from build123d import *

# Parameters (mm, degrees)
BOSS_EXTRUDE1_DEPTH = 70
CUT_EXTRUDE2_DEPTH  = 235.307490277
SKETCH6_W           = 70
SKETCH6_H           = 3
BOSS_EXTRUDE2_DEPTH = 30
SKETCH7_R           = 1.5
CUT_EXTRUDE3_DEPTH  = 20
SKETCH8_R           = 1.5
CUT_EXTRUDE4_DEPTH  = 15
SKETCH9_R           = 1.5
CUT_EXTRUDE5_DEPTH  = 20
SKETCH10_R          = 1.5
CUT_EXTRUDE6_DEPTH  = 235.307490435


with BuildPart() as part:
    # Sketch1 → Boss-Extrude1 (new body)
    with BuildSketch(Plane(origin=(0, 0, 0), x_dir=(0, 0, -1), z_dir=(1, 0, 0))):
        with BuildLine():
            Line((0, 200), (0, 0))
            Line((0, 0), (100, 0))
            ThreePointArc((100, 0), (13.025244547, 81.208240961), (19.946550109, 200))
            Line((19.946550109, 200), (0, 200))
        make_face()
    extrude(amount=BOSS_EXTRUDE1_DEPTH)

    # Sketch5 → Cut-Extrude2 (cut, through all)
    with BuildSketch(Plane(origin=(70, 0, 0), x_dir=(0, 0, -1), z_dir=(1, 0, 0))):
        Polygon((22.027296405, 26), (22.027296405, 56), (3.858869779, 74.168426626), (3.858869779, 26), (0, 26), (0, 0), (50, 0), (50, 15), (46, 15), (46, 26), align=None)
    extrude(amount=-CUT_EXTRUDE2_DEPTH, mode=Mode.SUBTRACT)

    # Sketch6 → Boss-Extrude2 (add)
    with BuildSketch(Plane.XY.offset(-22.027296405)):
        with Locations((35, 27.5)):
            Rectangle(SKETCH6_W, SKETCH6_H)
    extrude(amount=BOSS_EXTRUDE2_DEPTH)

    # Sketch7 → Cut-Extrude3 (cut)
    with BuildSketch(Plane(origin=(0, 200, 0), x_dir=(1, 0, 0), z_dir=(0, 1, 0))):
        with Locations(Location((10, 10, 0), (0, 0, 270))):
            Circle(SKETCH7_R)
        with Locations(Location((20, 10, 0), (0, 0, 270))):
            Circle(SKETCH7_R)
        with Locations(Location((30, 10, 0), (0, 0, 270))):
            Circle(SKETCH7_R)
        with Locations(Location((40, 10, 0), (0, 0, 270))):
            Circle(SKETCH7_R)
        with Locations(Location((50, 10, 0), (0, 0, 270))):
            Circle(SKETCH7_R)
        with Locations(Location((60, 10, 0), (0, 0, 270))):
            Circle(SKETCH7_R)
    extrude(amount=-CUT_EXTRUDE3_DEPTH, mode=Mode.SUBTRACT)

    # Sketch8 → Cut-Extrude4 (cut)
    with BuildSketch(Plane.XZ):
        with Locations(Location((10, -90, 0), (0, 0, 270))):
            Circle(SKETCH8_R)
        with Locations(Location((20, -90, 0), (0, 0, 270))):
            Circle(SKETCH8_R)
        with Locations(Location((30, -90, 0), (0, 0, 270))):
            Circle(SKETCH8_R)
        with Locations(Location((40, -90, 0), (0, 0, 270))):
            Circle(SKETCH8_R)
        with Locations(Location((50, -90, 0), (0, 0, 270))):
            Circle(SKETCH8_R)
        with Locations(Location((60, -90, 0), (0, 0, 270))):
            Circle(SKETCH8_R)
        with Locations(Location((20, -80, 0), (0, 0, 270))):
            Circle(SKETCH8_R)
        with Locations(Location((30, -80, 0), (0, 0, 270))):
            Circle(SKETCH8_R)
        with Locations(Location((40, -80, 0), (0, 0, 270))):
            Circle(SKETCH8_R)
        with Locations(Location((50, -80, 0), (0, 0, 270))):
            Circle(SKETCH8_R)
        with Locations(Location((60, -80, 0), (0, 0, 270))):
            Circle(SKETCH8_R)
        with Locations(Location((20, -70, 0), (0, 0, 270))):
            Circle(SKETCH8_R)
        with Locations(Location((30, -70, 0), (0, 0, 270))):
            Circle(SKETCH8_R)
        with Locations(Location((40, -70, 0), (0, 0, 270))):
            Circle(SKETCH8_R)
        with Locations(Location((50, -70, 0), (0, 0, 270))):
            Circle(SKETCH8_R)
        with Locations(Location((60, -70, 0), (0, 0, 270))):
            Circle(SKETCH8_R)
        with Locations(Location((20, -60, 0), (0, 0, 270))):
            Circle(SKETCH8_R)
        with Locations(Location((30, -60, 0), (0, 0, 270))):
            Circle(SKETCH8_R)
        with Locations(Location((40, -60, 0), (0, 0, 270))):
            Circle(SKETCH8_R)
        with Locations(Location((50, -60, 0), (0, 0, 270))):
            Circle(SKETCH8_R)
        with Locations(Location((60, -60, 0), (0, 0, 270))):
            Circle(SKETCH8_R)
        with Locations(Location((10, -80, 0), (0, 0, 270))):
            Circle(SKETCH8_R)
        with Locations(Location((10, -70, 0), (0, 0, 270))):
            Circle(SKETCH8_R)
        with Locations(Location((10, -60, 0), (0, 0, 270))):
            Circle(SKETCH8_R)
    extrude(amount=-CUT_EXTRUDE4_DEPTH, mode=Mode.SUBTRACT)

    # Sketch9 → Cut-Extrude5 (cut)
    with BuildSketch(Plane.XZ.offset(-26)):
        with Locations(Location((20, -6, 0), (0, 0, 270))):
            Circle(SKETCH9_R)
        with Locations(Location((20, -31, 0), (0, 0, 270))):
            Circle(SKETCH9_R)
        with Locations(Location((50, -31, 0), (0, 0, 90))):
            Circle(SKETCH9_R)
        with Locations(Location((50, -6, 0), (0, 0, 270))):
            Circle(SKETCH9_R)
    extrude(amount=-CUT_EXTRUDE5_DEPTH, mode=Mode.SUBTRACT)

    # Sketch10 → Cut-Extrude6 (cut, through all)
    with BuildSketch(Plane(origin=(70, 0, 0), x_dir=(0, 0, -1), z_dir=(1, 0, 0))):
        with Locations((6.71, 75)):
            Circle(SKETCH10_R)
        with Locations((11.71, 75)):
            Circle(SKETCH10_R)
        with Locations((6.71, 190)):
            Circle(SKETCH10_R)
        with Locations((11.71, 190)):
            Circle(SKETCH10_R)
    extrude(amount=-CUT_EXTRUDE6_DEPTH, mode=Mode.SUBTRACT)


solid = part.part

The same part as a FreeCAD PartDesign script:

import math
import FreeCAD as App
import Part
import Sketcher

V = App.Vector
Q = App.Units.Quantity


def add_polygon(sketch, points):
    """Adds a closed chain of lines whose ends are joined by coincident constraints."""
    first, n = sketch.GeometryCount, len(points)
    for a, b in zip(points, points[1:] + points[:1]):
        sketch.addGeometry(Part.LineSegment(App.Vector(*a, 0), App.Vector(*b, 0)), False)
    for i in range(n):
        sketch.addConstraint(Sketcher.Constraint("Coincident", first + i, 2, first + (i + 1) % n, 1))

doc = App.newDocument("Part")
params = doc.addObject("Spreadsheet::Sheet", "Params")
for row, (alias, value) in enumerate([
    ("sketch1_radius", "140 mm"),
    ("sketch1_width", "200 mm"),
    ("sketch1_height", "100 mm"),
    ("pad1_length", "70 mm"),
    ("sketch2_width", "30 mm"),
    ("sketch2_width2", "26 mm"),
    ("sketch2_width3", "15 mm"),
    ("sketch2_height", "50 mm"),
    ("sketch2_height2", "4 mm"),
    ("sketch3_width", "70 mm"),
    ("sketch3_height", "3 mm"),
    ("pad2_length", "30 mm"),
    ("sketch4_diameter", "3 mm"),
    ("pocket2_length", "20 mm"),
    ("sketch5_diameter", "3 mm"),
    ("pocket3_length", "15 mm"),
    ("sketch6_diameter", "3 mm"),
    ("pocket4_length", "20 mm"),
    ("sketch7_diameter", "3 mm"),
], start=1):
    params.set(f"A{row}", alias)
    params.set(f"B{row}", "=" + value)
    params.setAlias(f"B{row}", alias)

body = doc.addObject("PartDesign::Body", "Body")

# Sketch on YZ plane
sketch1 = doc.addObject("Sketcher::SketchObject", "Sketch")
body.addObject(sketch1)
sketch1.AttachmentSupport = (doc.YZ_Plane, [""])
sketch1.MapMode = "FlatFace"
sketch1.addGeometry([
    Part.LineSegment(V(200, 0, 0), V(0, 0, 0)),
    Part.LineSegment(V(0, 0, 0), V(0, -100, 0)),
    Part.ArcOfCircle(Part.Circle(V(133.232879, -143, 0), V(0, 0, 1), 140), math.radians(61.516347), math.radians(162.11287)),
    Part.LineSegment(V(200, -19.94655, 0), V(200, 0, 0)),
], False)
sketch1.addConstraint([
    Sketcher.Constraint("Coincident", 0, 2, 1, 1),
    Sketcher.Constraint("Coincident", 1, 2, 2, 2),
    Sketcher.Constraint("Coincident", 2, 1, 3, 1),
    Sketcher.Constraint("Coincident", 3, 2, 0, 1),
    Sketcher.Constraint("Horizontal", 0),
    Sketcher.Constraint("Vertical", 1),
    Sketcher.Constraint("Vertical", 3),
    Sketcher.Constraint("Coincident", 0, 2, -1, 1),
    Sketcher.Constraint("Radius", 2, Q("140 mm")),
    Sketcher.Constraint("DistanceX", 0, 2, 0, 1, Q("200 mm")),
    Sketcher.Constraint("DistanceY", 1, 2, 1, 1, Q("100 mm")),
    Sketcher.Constraint("DistanceY", 2, 3, -1, 1, Q("143 mm")),
])
sketch1.setExpression("Constraints[8]", "Params.sketch1_radius")
sketch1.setExpression("Constraints[9]", "Params.sketch1_width")
sketch1.setExpression("Constraints[10]", "Params.sketch1_height")
pad1 = doc.addObject("PartDesign::Pad", "Pad")
body.addObject(pad1)
pad1.Profile = sketch1
pad1.setExpression("Length", "Params.pad1_length")

# Sketch on YZ plane
sketch2 = doc.addObject("Sketcher::SketchObject", "Sketch001")
body.addObject(sketch2)
sketch2.AttachmentSupport = (doc.YZ_Plane, [""])
sketch2.MapMode = "FlatFace"
sketch2.AttachmentOffset = App.Placement(V(0, 0, 70), App.Rotation())
add_polygon(sketch2, [(26, -22.027296), (56, -22.027296), (74.168427, -3.85887), (26, -3.85887), (26, 0), (0, 0), (0, -50), (15, -50), (15, -46), (26, -46)])  # lines 0-9
sketch2.addConstraint([
    Sketcher.Constraint("Horizontal", 0),
    Sketcher.Constraint("Horizontal", 2),
    Sketcher.Constraint("Vertical", 3),
    Sketcher.Constraint("Horizontal", 4),
    Sketcher.Constraint("Vertical", 5),
    Sketcher.Constraint("Horizontal", 6),
    Sketcher.Constraint("Vertical", 7),
    Sketcher.Constraint("Horizontal", 8),
    Sketcher.Constraint("Vertical", 9),
    Sketcher.Constraint("Coincident", 4, 2, -1, 1),
    Sketcher.Constraint("Vertical", 3, 2, 8, 2),
    Sketcher.Constraint("DistanceX", 0, 1, 0, 2, Q("30 mm")),
    Sketcher.Constraint("DistanceX", 4, 2, 4, 1, Q("26 mm")),
    Sketcher.Constraint("DistanceX", 6, 1, 6, 2, Q("15 mm")),
    Sketcher.Constraint("DistanceY", 5, 2, 5, 1, Q("50 mm")),
    Sketcher.Constraint("DistanceY", 7, 1, 7, 2, Q("4 mm")),
    Sketcher.Constraint("Angle", 1, Q("45 deg")),
    Sketcher.Constraint("DistanceY", 3, 1, 3, 2, Q("3.85887 mm")),
    Sketcher.Constraint("DistanceX", 2, 2, 2, 1, Q("48.168427 mm")),
])
sketch2.setExpression("Constraints[21]", "Params.sketch2_width")
sketch2.setExpression("Constraints[22]", "Params.sketch2_width2")
sketch2.setExpression("Constraints[23]", "Params.sketch2_width3")
sketch2.setExpression("Constraints[24]", "Params.sketch2_height")
sketch2.setExpression("Constraints[25]", "Params.sketch2_height2")
pocket1 = doc.addObject("PartDesign::Pocket", "Pocket")
body.addObject(pocket1)
pocket1.Profile = sketch2
pocket1.Type = "ThroughAll"

# Sketch on XY plane
sketch3 = doc.addObject("Sketcher::SketchObject", "Sketch002")
body.addObject(sketch3)
sketch3.AttachmentSupport = (doc.XY_Plane, [""])
sketch3.MapMode = "FlatFace"
sketch3.AttachmentOffset = App.Placement(V(0, 0, -22.027296), App.Rotation())
add_polygon(sketch3, [(0, 29), (0, 26), (70, 26), (70, 29)])  # lines 0-3
sketch3.addConstraint([
    Sketcher.Constraint("Vertical", 0),
    Sketcher.Constraint("Horizontal", 1),
    Sketcher.Constraint("Vertical", 2),
    Sketcher.Constraint("Horizontal", 3),
    Sketcher.Constraint("PointOnObject", 0, 2, -2),
    Sketcher.Constraint("DistanceX", 1, 1, 1, 2, Q("70 mm")),
    Sketcher.Constraint("DistanceY", 0, 2, 0, 1, Q("3 mm")),
    Sketcher.Constraint("DistanceY", -1, 1, 0, 2, Q("26 mm")),
])
sketch3.setExpression("Constraints[9]", "Params.sketch3_width")
sketch3.setExpression("Constraints[10]", "Params.sketch3_height")
pad2 = doc.addObject("PartDesign::Pad", "Pad001")
body.addObject(pad2)
pad2.Profile = sketch3
pad2.setExpression("Length", "Params.pad2_length")

# Sketch on XZ plane
sketch4 = doc.addObject("Sketcher::SketchObject", "Sketch003")
body.addObject(sketch4)
sketch4.AttachmentSupport = (doc.XZ_Plane, [""])
sketch4.MapMode = "FlatFace"
sketch4.AttachmentOffset = App.Placement(V(0, 0, -200), App.Rotation())
sketch4.addGeometry([
    Part.Circle(V(10, -10, 0), V(0, 0, 1), 1.5),  # 0
    Part.Circle(V(20, -10, 0), V(0, 0, 1), 1.5),  # 1
    Part.Circle(V(30, -10, 0), V(0, 0, 1), 1.5),  # 2
    Part.Circle(V(40, -10, 0), V(0, 0, 1), 1.5),  # 3
    Part.Circle(V(50, -10, 0), V(0, 0, 1), 1.5),  # 4
    Part.Circle(V(60, -10, 0), V(0, 0, 1), 1.5),  # 5
], False)
sketch4.addConstraint([
    Sketcher.Constraint("Equal", 0, 1),
    Sketcher.Constraint("Equal", 1, 2),
    Sketcher.Constraint("Equal", 2, 3),
    Sketcher.Constraint("Equal", 3, 4),
    Sketcher.Constraint("Equal", 4, 5),
    Sketcher.Constraint("Horizontal", 0, 3, 1, 3),
    Sketcher.Constraint("Horizontal", 1, 3, 2, 3),
    Sketcher.Constraint("Horizontal", 2, 3, 3, 3),
    Sketcher.Constraint("Horizontal", 3, 3, 4, 3),
    Sketcher.Constraint("Horizontal", 4, 3, 5, 3),
    Sketcher.Constraint("Diameter", 0, Q("3 mm")),
    Sketcher.Constraint("DistanceX", -1, 1, 0, 3, Q("10 mm")),
    Sketcher.Constraint("DistanceY", 0, 3, -1, 1, Q("10 mm")),
    Sketcher.Constraint("DistanceX", -1, 1, 1, 3, Q("20 mm")),
    Sketcher.Constraint("DistanceX", -1, 1, 2, 3, Q("30 mm")),
    Sketcher.Constraint("DistanceX", -1, 1, 3, 3, Q("40 mm")),
    Sketcher.Constraint("DistanceX", -1, 1, 4, 3, Q("50 mm")),
    Sketcher.Constraint("DistanceX", -1, 1, 5, 3, Q("60 mm")),
])
sketch4.setExpression("Constraints[10]", "Params.sketch4_diameter")
pocket2 = doc.addObject("PartDesign::Pocket", "Pocket001")
body.addObject(pocket2)
pocket2.Profile = sketch4
pocket2.setExpression("Length", "Params.pocket2_length")
pocket2.Reversed = True

# Sketch on XZ plane
sketch5 = doc.addObject("Sketcher::SketchObject", "Sketch004")
body.addObject(sketch5)
sketch5.AttachmentSupport = (doc.XZ_Plane, [""])
sketch5.MapMode = "FlatFace"
sketch5.addGeometry([
    Part.Circle(V(10, -90, 0), V(0, 0, 1), 1.5),  # 0
    Part.Circle(V(20, -90, 0), V(0, 0, 1), 1.5),  # 1
    Part.Circle(V(30, -90, 0), V(0, 0, 1), 1.5),  # 2
    Part.Circle(V(40, -90, 0), V(0, 0, 1), 1.5),  # 3
    Part.Circle(V(50, -90, 0), V(0, 0, 1), 1.5),  # 4
    Part.Circle(V(60, -90, 0), V(0, 0, 1), 1.5),  # 5
    Part.Circle(V(20, -80, 0), V(0, 0, 1), 1.5),  # 6
    Part.Circle(V(30, -80, 0), V(0, 0, 1), 1.5),  # 7
    Part.Circle(V(40, -80, 0), V(0, 0, 1), 1.5),  # 8
    Part.Circle(V(50, -80, 0), V(0, 0, 1), 1.5),  # 9
    Part.Circle(V(60, -80, 0), V(0, 0, 1), 1.5),  # 10
    Part.Circle(V(20, -70, 0), V(0, 0, 1), 1.5),  # 11
    Part.Circle(V(30, -70, 0), V(0, 0, 1), 1.5),  # 12
    Part.Circle(V(40, -70, 0), V(0, 0, 1), 1.5),  # 13
    Part.Circle(V(50, -70, 0), V(0, 0, 1), 1.5),  # 14
    Part.Circle(V(60, -70, 0), V(0, 0, 1), 1.5),  # 15
    Part.Circle(V(20, -60, 0), V(0, 0, 1), 1.5),  # 16
    Part.Circle(V(30, -60, 0), V(0, 0, 1), 1.5),  # 17
    Part.Circle(V(40, -60, 0), V(0, 0, 1), 1.5),  # 18
    Part.Circle(V(50, -60, 0), V(0, 0, 1), 1.5),  # 19
    Part.Circle(V(60, -60, 0), V(0, 0, 1), 1.5),  # 20
    Part.Circle(V(10, -80, 0), V(0, 0, 1), 1.5),  # 21
    Part.Circle(V(10, -70, 0), V(0, 0, 1), 1.5),  # 22
    Part.Circle(V(10, -60, 0), V(0, 0, 1), 1.5),  # 23
], False)
sketch5.addConstraint([
    Sketcher.Constraint("Equal", 0, 1),
    Sketcher.Constraint("Equal", 1, 2),
    Sketcher.Constraint("Equal", 2, 3),
    Sketcher.Constraint("Equal", 3, 4),
    Sketcher.Constraint("Equal", 4, 5),
    Sketcher.Constraint("Equal", 5, 6),
    Sketcher.Constraint("Equal", 6, 7),
    Sketcher.Constraint("Equal", 7, 8),
    Sketcher.Constraint("Equal", 8, 9),
    Sketcher.Constraint("Equal", 9, 10),
    Sketcher.Constraint("Equal", 10, 11),
    Sketcher.Constraint("Equal", 11, 12),
    Sketcher.Constraint("Equal", 12, 13),
    Sketcher.Constraint("Equal", 13, 14),
    Sketcher.Constraint("Equal", 14, 15),
    Sketcher.Constraint("Equal", 15, 16),
    Sketcher.Constraint("Equal", 16, 17),
    Sketcher.Constraint("Equal", 17, 18),
    Sketcher.Constraint("Equal", 18, 19),
    Sketcher.Constraint("Equal", 19, 20),
    Sketcher.Constraint("Equal", 20, 21),
    Sketcher.Constraint("Equal", 21, 22),
    Sketcher.Constraint("Equal", 22, 23),
    Sketcher.Constraint("Horizontal", 0, 3, 1, 3),
    Sketcher.Constraint("Horizontal", 1, 3, 2, 3),
    Sketcher.Constraint("Horizontal", 2, 3, 3, 3),
    Sketcher.Constraint("Horizontal", 3, 3, 4, 3),
    Sketcher.Constraint("Horizontal", 4, 3, 5, 3),
    Sketcher.Constraint("Horizontal", 6, 3, 7, 3),
    Sketcher.Constraint("Horizontal", 7, 3, 8, 3),
    Sketcher.Constraint("Horizontal", 8, 3, 9, 3),
    Sketcher.Constraint("Horizontal", 9, 3, 10, 3),
    Sketcher.Constraint("Horizontal", 11, 3, 12, 3),
    Sketcher.Constraint("Horizontal", 12, 3, 13, 3),
    Sketcher.Constraint("Horizontal", 13, 3, 14, 3),
    Sketcher.Constraint("Horizontal", 14, 3, 15, 3),
    Sketcher.Constraint("Horizontal", 16, 3, 17, 3),
    Sketcher.Constraint("Horizontal", 17, 3, 18, 3),
    Sketcher.Constraint("Horizontal", 18, 3, 19, 3),
    Sketcher.Constraint("Horizontal", 19, 3, 20, 3),
    Sketcher.Constraint("Horizontal", 10, 3, 21, 3),
    Sketcher.Constraint("Horizontal", 15, 3, 22, 3),
    Sketcher.Constraint("Horizontal", 20, 3, 23, 3),
    Sketcher.Constraint("Vertical", 1, 3, 6, 3),
    Sketcher.Constraint("Vertical", 2, 3, 7, 3),
    Sketcher.Constraint("Vertical", 3, 3, 8, 3),
    Sketcher.Constraint("Vertical", 4, 3, 9, 3),
    Sketcher.Constraint("Vertical", 5, 3, 10, 3),
    Sketcher.Constraint("Vertical", 6, 3, 11, 3),
    Sketcher.Constraint("Vertical", 7, 3, 12, 3),
    Sketcher.Constraint("Vertical", 8, 3, 13, 3),
    Sketcher.Constraint("Vertical", 9, 3, 14, 3),
    Sketcher.Constraint("Vertical", 10, 3, 15, 3),
    Sketcher.Constraint("Vertical", 11, 3, 16, 3),
    Sketcher.Constraint("Vertical", 12, 3, 17, 3),
    Sketcher.Constraint("Vertical", 13, 3, 18, 3),
    Sketcher.Constraint("Vertical", 14, 3, 19, 3),
    Sketcher.Constraint("Vertical", 15, 3, 20, 3),
    Sketcher.Constraint("Vertical", 0, 3, 21, 3),
    Sketcher.Constraint("Vertical", 21, 3, 22, 3),
    Sketcher.Constraint("Vertical", 22, 3, 23, 3),
    Sketcher.Constraint("Diameter", 0, Q("3 mm")),
    Sketcher.Constraint("DistanceX", -1, 1, 0, 3, Q("10 mm")),
    Sketcher.Constraint("DistanceY", 0, 3, -1, 1, Q("90 mm")),
    Sketcher.Constraint("DistanceX", -1, 1, 1, 3, Q("20 mm")),
    Sketcher.Constraint("DistanceX", -1, 1, 2, 3, Q("30 mm")),
    Sketcher.Constraint("DistanceX", -1, 1, 3, 3, Q("40 mm")),
    Sketcher.Constraint("DistanceX", -1, 1, 4, 3, Q("50 mm")),
    Sketcher.Constraint("DistanceX", -1, 1, 5, 3, Q("60 mm")),
    Sketcher.Constraint("DistanceY", 6, 3, -1, 1, Q("80 mm")),
    Sketcher.Constraint("DistanceY", 11, 3, -1, 1, Q("70 mm")),
    Sketcher.Constraint("DistanceY", 16, 3, -1, 1, Q("60 mm")),
])
sketch5.setExpression("Constraints[61]", "Params.sketch5_diameter")
pocket3 = doc.addObject("PartDesign::Pocket", "Pocket002")
body.addObject(pocket3)
pocket3.Profile = sketch5
pocket3.setExpression("Length", "Params.pocket3_length")

# Sketch on XZ plane
sketch6 = doc.addObject("Sketcher::SketchObject", "Sketch005")
body.addObject(sketch6)
sketch6.AttachmentSupport = (doc.XZ_Plane, [""])
sketch6.MapMode = "FlatFace"
sketch6.AttachmentOffset = App.Placement(V(0, 0, -26), App.Rotation())
sketch6.addGeometry([
    Part.Circle(V(20, -6, 0), V(0, 0, 1), 1.5),
    Part.Circle(V(20, -31, 0), V(0, 0, 1), 1.5),
    Part.Circle(V(50, -31, 0), V(0, 0, 1), 1.5),
    Part.Circle(V(50, -6, 0), V(0, 0, 1), 1.5),
], False)
sketch6.addConstraint([
    Sketcher.Constraint("Equal", 0, 1),
    Sketcher.Constraint("Equal", 1, 2),
    Sketcher.Constraint("Equal", 2, 3),
    Sketcher.Constraint("Horizontal", 1, 3, 2, 3),
    Sketcher.Constraint("Horizontal", 0, 3, 3, 3),
    Sketcher.Constraint("Vertical", 0, 3, 1, 3),
    Sketcher.Constraint("Vertical", 2, 3, 3, 3),
    Sketcher.Constraint("Diameter", 0, Q("3 mm")),
    Sketcher.Constraint("DistanceX", -1, 1, 0, 3, Q("20 mm")),
    Sketcher.Constraint("DistanceY", 0, 3, -1, 1, Q("6 mm")),
    Sketcher.Constraint("DistanceY", 1, 3, -1, 1, Q("31 mm")),
    Sketcher.Constraint("DistanceX", -1, 1, 2, 3, Q("50 mm")),
])
sketch6.setExpression("Constraints[7]", "Params.sketch6_diameter")
pocket4 = doc.addObject("PartDesign::Pocket", "Pocket003")
body.addObject(pocket4)
pocket4.Profile = sketch6
pocket4.setExpression("Length", "Params.pocket4_length")

# Sketch on YZ plane
sketch7 = doc.addObject("Sketcher::SketchObject", "Sketch006")
body.addObject(sketch7)
sketch7.AttachmentSupport = (doc.YZ_Plane, [""])
sketch7.MapMode = "FlatFace"
sketch7.AttachmentOffset = App.Placement(V(0, 0, 70), App.Rotation())
sketch7.addGeometry([
    Part.Circle(V(75, -6.71, 0), V(0, 0, 1), 1.5),
    Part.Circle(V(75, -11.71, 0), V(0, 0, 1), 1.5),
    Part.Circle(V(190, -6.71, 0), V(0, 0, 1), 1.5),
    Part.Circle(V(190, -11.71, 0), V(0, 0, 1), 1.5),
], False)
sketch7.addConstraint([
    Sketcher.Constraint("Equal", 0, 1),
    Sketcher.Constraint("Equal", 1, 2),
    Sketcher.Constraint("Equal", 2, 3),
    Sketcher.Constraint("Horizontal", 0, 3, 2, 3),
    Sketcher.Constraint("Horizontal", 1, 3, 3, 3),
    Sketcher.Constraint("Vertical", 0, 3, 1, 3),
    Sketcher.Constraint("Vertical", 2, 3, 3, 3),
    Sketcher.Constraint("Diameter", 0, Q("3 mm")),
    Sketcher.Constraint("DistanceX", -1, 1, 0, 3, Q("75 mm")),
    Sketcher.Constraint("DistanceX", -1, 1, 2, 3, Q("190 mm")),
    Sketcher.Constraint("DistanceY", 1, 3, 0, 3, Q("5 mm")),
    Sketcher.Constraint("DistanceY", 0, 3, -1, 1, Q("6.71 mm")),
])
sketch7.setExpression("Constraints[7]", "Params.sketch7_diameter")
pocket5 = doc.addObject("PartDesign::Pocket", "Pocket004")
body.addObject(pocket5)
pocket5.Profile = sketch7
pocket5.Type = "ThroughAll"

doc.recompute()
